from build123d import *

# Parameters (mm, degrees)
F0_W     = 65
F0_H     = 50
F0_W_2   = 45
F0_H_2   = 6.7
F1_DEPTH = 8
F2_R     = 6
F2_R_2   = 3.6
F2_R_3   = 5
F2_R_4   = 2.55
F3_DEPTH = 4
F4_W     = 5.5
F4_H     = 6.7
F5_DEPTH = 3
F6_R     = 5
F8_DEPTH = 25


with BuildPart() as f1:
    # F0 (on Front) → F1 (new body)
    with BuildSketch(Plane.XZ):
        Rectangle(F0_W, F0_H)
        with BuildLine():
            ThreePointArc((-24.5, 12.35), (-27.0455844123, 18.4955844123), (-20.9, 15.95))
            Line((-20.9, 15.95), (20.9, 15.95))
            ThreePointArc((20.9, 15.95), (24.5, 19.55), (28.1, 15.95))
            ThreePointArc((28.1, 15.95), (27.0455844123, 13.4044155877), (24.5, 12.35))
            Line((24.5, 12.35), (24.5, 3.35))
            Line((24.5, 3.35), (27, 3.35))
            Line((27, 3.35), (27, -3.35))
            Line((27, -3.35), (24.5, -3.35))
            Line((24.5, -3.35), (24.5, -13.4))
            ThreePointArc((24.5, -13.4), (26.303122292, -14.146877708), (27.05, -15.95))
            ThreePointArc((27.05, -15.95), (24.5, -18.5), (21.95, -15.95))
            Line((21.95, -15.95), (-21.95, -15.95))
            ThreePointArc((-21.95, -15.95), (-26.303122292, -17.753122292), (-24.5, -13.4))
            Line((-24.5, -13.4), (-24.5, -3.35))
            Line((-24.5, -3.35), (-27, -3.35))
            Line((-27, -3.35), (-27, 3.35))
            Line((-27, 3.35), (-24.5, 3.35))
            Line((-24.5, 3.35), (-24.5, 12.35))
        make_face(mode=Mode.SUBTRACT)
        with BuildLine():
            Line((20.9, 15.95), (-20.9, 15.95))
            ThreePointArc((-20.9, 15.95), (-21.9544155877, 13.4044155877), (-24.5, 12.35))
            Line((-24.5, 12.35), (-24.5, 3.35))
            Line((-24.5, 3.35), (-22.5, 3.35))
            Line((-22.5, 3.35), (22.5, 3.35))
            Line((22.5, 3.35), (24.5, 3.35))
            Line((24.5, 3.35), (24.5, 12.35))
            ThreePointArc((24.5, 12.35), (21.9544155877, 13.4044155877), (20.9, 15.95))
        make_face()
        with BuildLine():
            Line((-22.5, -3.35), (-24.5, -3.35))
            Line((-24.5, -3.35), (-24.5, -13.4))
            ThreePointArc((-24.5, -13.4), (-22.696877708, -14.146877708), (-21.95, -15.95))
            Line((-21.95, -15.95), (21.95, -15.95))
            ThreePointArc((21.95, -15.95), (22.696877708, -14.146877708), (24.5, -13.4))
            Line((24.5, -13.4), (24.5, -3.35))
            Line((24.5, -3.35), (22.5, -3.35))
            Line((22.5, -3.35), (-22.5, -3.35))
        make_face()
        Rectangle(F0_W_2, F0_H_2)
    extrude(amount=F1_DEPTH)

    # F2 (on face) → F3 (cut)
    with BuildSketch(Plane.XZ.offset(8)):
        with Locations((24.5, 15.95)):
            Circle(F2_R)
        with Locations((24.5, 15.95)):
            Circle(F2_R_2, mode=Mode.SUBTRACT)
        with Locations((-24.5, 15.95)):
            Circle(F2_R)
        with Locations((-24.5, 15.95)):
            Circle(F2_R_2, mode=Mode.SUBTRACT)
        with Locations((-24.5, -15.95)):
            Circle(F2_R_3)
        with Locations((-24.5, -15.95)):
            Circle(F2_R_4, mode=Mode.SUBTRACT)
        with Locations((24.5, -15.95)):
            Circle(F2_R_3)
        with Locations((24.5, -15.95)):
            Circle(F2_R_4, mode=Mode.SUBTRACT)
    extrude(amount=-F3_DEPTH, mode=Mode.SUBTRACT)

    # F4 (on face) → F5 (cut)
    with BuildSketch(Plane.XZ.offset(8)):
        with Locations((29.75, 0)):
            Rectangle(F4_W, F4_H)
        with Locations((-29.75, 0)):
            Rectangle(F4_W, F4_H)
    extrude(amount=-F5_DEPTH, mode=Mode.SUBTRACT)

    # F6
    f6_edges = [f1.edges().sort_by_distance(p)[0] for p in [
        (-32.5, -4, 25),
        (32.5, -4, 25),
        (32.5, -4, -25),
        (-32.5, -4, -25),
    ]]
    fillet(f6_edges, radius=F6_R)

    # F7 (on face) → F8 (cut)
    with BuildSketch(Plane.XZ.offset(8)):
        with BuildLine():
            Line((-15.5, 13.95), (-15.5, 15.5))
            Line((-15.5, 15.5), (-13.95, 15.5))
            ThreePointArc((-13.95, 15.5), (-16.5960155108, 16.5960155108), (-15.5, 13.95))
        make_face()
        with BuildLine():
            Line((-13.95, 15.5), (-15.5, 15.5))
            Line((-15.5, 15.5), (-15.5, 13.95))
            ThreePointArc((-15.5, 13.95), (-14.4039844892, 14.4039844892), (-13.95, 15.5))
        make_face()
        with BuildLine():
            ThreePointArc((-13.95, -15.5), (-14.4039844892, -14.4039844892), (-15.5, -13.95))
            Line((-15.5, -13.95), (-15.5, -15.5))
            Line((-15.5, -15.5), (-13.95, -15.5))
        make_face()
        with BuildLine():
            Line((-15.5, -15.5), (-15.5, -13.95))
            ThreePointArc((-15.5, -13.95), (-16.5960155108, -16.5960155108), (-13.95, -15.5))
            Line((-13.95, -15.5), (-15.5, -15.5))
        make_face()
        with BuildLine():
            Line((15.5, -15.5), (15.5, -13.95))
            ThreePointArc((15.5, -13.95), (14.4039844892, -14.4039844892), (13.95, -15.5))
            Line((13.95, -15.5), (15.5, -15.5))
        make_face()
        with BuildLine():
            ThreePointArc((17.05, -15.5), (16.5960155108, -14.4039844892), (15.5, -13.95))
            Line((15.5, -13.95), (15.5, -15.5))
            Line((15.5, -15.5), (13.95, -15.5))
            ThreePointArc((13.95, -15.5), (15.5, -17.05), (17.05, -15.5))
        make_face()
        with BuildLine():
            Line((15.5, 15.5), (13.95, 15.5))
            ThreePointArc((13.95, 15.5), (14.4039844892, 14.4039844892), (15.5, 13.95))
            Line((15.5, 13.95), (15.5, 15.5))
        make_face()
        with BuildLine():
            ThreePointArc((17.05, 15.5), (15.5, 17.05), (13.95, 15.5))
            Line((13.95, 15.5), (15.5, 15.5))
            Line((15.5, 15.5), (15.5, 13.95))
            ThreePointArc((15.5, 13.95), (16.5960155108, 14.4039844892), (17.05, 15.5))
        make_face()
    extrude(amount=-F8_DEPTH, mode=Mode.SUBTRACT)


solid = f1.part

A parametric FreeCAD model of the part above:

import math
import FreeCAD as App
import Part
import Sketcher

V = App.Vector
Q = App.Units.Quantity


def edges_at(feature, points):
    """Names of the edges that pass closest to the given points."""
    edges = feature.Shape.Edges
    near = lambda p: min(range(len(edges)), key=lambda i: edges[i].distToShape(Part.Vertex(*p))[0])
    return sorted({f"Edge{near(p) + 1}" for p in points})

doc = App.newDocument("Part")
body = doc.addObject("PartDesign::Body", "Body")

# Sketch on XZ plane
sketch1 = body.newObject("Sketcher::SketchObject", "Sketch")
sketch1.AttachmentSupport = (doc.getObject("XZ_Plane"), [""])
sketch1.MapMode = "FlatFace"
sketch1.addGeometry([
    Part.LineSegment(V(-32.5, 25, 0), V(-32.5, -25, 0)),  # 0
    Part.LineSegment(V(-32.5, -25, 0), V(32.5, -25, 0)),  # 1
    Part.LineSegment(V(32.5, -25, 0), V(32.5, 25, 0)),  # 2
    Part.LineSegment(V(32.5, 25, 0), V(-32.5, 25, 0)),  # 3
    Part.ArcOfCircle(Part.Circle(V(-24.5, -15.9, 0), V(0, 0, 1), 2.5), math.radians(90), math.radians(360)),  # 4
    Part.ArcOfCircle(Part.Circle(V(-24.5, -15.9, 0), V(0, 0, 1), 2.5), math.radians(0), math.radians(90)),  # 5
    Part.ArcOfCircle(Part.Circle(V(24.5, -15.9, 0), V(0, 0, 1), 2.5), math.radians(0), math.radians(90)),  # 6
    Part.ArcOfCircle(Part.Circle(V(24.5, -15.9, 0), V(0, 0, 1), 2.5), math.radians(180), math.radians(360)),  # 7
    Part.ArcOfCircle(Part.Circle(V(24.5, -15.9, 0), V(0, 0, 1), 2.5), math.radians(90), math.radians(180)),  # 8
    Part.LineSegment(V(-27, -3.4, 0), V(-27, 3.4, 0)),  # 9
    Part.LineSegment(V(-27, 3.4, 0), V(-22.5, 3.4, 0)),  # 10
    Part.LineSegment(V(-22.5, 3.4, 0), V(-22.5, -3.4, 0)),  # 11
    Part.LineSegment(V(-22.5, -3.4, 0), V(-27, -3.4, 0)),  # 12
    Part.LineSegment(V(27, -3.4, 0), V(22.5, -3.4, 0)),  # 13
    Part.LineSegment(V(22.5, -3.4, 0), V(22.5, 3.4, 0)),  # 14
    Part.LineSegment(V(22.5, 3.4, 0), V(27, 3.4, 0)),  # 15
    Part.LineSegment(V(27, 3.4, 0), V(27, -3.4, 0)),  # 16
    Part.ArcOfCircle(Part.Circle(V(-24.5, 15.9, 0), V(0, 0, 1), 3.6), math.radians(0), math.radians(270)),  # 17
    Part.ArcOfCircle(Part.Circle(V(-24.5, 15.9, 0), V(0, 0, 1), 3.6), math.radians(-90), math.radians(0)),  # 18
    Part.ArcOfCircle(Part.Circle(V(24.5, 15.9, 0), V(0, 0, 1), 3.6), math.radians(-90), math.radians(0)),  # 19
    Part.ArcOfCircle(Part.Circle(V(24.5, 15.9, 0), V(0, 0, 1), 3.6), math.radians(180), math.radians(270)),  # 20
    Part.ArcOfCircle(Part.Circle(V(24.5, 15.9, 0), V(0, 0, 1), 3.6), math.radians(0), math.radians(180)),  # 21
], False)
sketch1.addConstraint([
    Sketcher.Constraint("Coincident", 0, 2, 1, 1),
    Sketcher.Constraint("Coincident", 1, 2, 2, 1),
    Sketcher.Constraint("Coincident", 2, 2, 3, 1),
    Sketcher.Constraint("Coincident", 3, 2, 0, 1),
    Sketcher.Constraint("Tangent", 4, 1, 5, 2),
    Sketcher.Constraint("Coincident", 5, 1, 4, 2),
    Sketcher.Constraint("Tangent", 6, 1, 7, 2),
    Sketcher.Constraint("Tangent", 7, 1, 8, 2),
    Sketcher.Constraint("Tangent", 8, 1, 6, 2),
    Sketcher.Constraint("Coincident", 9, 2, 10, 1),
    Sketcher.Constraint("Coincident", 10, 2, 11, 1),
    Sketcher.Constraint("Coincident", 11, 2, 12, 1),
    Sketcher.Constraint("Coincident", 12, 2, 9, 1),
    Sketcher.Constraint("Coincident", 13, 2, 14, 1),
    Sketcher.Constraint("Coincident", 14, 2, 15, 1),
    Sketcher.Constraint("Coincident", 15, 2, 16, 1),
    Sketcher.Constraint("Coincident", 16, 2, 13, 1),
    Sketcher.Constraint("Tangent", 17, 1, 18, 2),
    Sketcher.Constraint("Coincident", 18, 1, 17, 2),
    Sketcher.Constraint("Tangent", 19, 1, 20, 2),
    Sketcher.Constraint("Tangent", 20, 1, 21, 2),
    Sketcher.Constraint("Tangent", 21, 1, 19, 2),
    Sketcher.Constraint("Vertical", 0),
    Sketcher.Constraint("Horizontal", 1),
    Sketcher.Constraint("Vertical", 2),
    Sketcher.Constraint("Horizontal", 3),
    Sketcher.Constraint("Vertical", 9),
    Sketcher.Constraint("Horizontal", 10),
    Sketcher.Constraint("Vertical", 11),
    Sketcher.Constraint("Horizontal", 12),
    Sketcher.Constraint("Horizontal", 13),
    Sketcher.Constraint("Vertical", 14),
    Sketcher.Constraint("Horizontal", 15),
    Sketcher.Constraint("Vertical", 16),
    Sketcher.Constraint("Equal", 5, 6),
    Sketcher.Constraint("Equal", 18, 19),
    Sketcher.Constraint("Symmetric", 6, 3, 17, 3, -1, 1),
    Sketcher.Constraint("Symmetric", 4, 3, 19, 3, -1, 1),
    Sketcher.Constraint("Symmetric", 0, 2, 2, 2, -1, 1),
    Sketcher.Constraint("Symmetric", 10, 2, 13, 2, -1, 1),
    Sketcher.Constraint("Symmetric", 12, 2, 15, 2, -1, 1),
    Sketcher.Constraint("Symmetric", 4, 3, 6, 3, -2),
    Sketcher.Constraint("Horizontal", 8, 3, 5, 1),
    Sketcher.Constraint("Horizontal", 5, 1, 6, 1),
    Sketcher.Constraint("Horizontal", 6, 1, 7, 1),
    Sketcher.Constraint("Horizontal", 12, 2, 13, 2),
    Sketcher.Constraint("Horizontal", 21, 3, 17, 1),
    Sketcher.Constraint("Horizontal", 17, 1, 20, 1),
    Sketcher.Constraint("Horizontal", 20, 1, 21, 1),
    Sketcher.Constraint("Vertical", 18, 3, 4, 1),
    Sketcher.Constraint("Vertical", 21, 3, 8, 1),
    Sketcher.Constraint("Vertical", 4, 1, 18, 1),
    Sketcher.Constraint("Vertical", 8, 1, 19, 1),
    Sketcher.Constraint("Radius", 17, Q("3.6 mm")),
    Sketcher.Constraint("DistanceX", 1, 1, 1, 2, Q("65 mm")),
    Sketcher.Constraint("DistanceY", 0, 2, 0, 1, Q("50 mm")),
    Sketcher.Constraint("Radius", 4, Q("2.55 mm")),
    Sketcher.Constraint("DistanceX", 10, 1, 10, 2, Q("4.5 mm")),
    Sketcher.Constraint("DistanceY", 9, 1, 9, 2, Q("6.7 mm")),
    Sketcher.Constraint("DistanceX", 9, 2, -1, 1, Q("27 mm")),
    Sketcher.Constraint("DistanceX", 4, 3, 6, 3, Q("49 mm")),
    Sketcher.Constraint("DistanceY", 10, 2, 18, 1, Q("9 mm")),
])
pad1 = body.newObject("PartDesign::Pad", "Pad")
pad1.Profile = sketch1
pad1.Length = 8

# Sketch on XZ plane
sketch2 = body.newObject("Sketcher::SketchObject", "Sketch001")
sketch2.AttachmentSupport = (doc.getObject("XZ_Plane"), [""])
sketch2.MapMode = "FlatFace"
sketch2.AttachmentOffset = App.Placement(V(0, 0, 8), App.Rotation())
sketch2.addGeometry([
    Part.Circle(V(24.5, 15.9, 0), V(0, 0, 1), 6),  # 0
    Part.Circle(V(24.5, 15.9, 0), V(0, 0, 1), 3.6),  # 1
    Part.Circle(V(-24.5, 15.9, 0), V(0, 0, 1), 6),  # 2
    Part.Circle(V(-24.5, 15.9, 0), V(0, 0, 1), 3.6),  # 3
    Part.Circle(V(-24.5, -15.9, 0), V(0, 0, 1), 5),  # 4
    Part.Circle(V(-24.5, -15.9, 0), V(0, 0, 1), 2.5),  # 5
    Part.Circle(V(24.5, -15.9, 0), V(0, 0, 1), 5),  # 6
    Part.Circle(V(24.5, -15.9, 0), V(0, 0, 1), 2.5),  # 7
], False)
sketch2.addConstraint([
    Sketcher.Constraint("Coincident", 1, 3, 0, 3),
    Sketcher.Constraint("Coincident", 3, 3, 2, 3),
    Sketcher.Constraint("Coincident", 5, 3, 4, 3),
    Sketcher.Constraint("Coincident", 7, 3, 6, 3),
    Sketcher.Constraint("Equal", 0, 2),
    Sketcher.Constraint("Equal", 1, 3),
    Sketcher.Constraint("Equal", 4, 6),
    Sketcher.Constraint("Equal", 5, 7),
    Sketcher.Constraint("Symmetric", 0, 3, 4, 3, -1, 1),
    Sketcher.Constraint("Symmetric", 2, 3, 6, 3, -1, 1),
    Sketcher.Constraint("Symmetric", 0, 3, 2, 3, -2),
    Sketcher.Constraint("Diameter", 0, Q("12 mm")),
    Sketcher.Constraint("Diameter", 4, Q("10 mm")),
    Sketcher.Constraint("Diameter", 1, Q("7.2 mm")),
    Sketcher.Constraint("Diameter", 5, Q("5.1 mm")),
    Sketcher.Constraint("DistanceX", 2, 3, 0, 3, Q("49 mm")),
    Sketcher.Constraint("DistanceY", 4, 3, 2, 3, Q("31.9 mm")),
])
pocket1 = body.newObject("PartDesign::Pocket", "Pocket")
pocket1.Profile = sketch2
pocket1.Length = 4

# Sketch on XZ plane
sketch3 = body.newObject("Sketcher::SketchObject", "Sketch002")
sketch3.AttachmentSupport = (doc.getObject("XZ_Plane"), [""])
sketch3.MapMode = "FlatFace"
sketch3.AttachmentOffset = App.Placement(V(0, 0, 8), App.Rotation())
sketch3.addGeometry([
    Part.LineSegment(V(27, 3, 0), V(27, -3, 0)),  # 0
    Part.LineSegment(V(27, -3, 0), V(32, -3, 0)),  # 1
    Part.LineSegment(V(32, -3, 0), V(32, 3, 0)),  # 2
    Part.LineSegment(V(32, 3, 0), V(27, 3, 0)),  # 3
    Part.LineSegment(V(-32, 3, 0), V(-32, -3, 0)),  # 4
    Part.LineSegment(V(-32, -3, 0), V(-27, -3, 0)),  # 5
    Part.LineSegment(V(-27, -3, 0), V(-27, 3, 0)),  # 6
    Part.LineSegment(V(-27, 3, 0), V(-32, 3, 0)),  # 7
], False)
sketch3.addConstraint([
    Sketcher.Constraint("Coincident", 0, 2, 1, 1),
    Sketcher.Constraint("Coincident", 1, 2, 2, 1),
    Sketcher.Constraint("Coincident", 2, 2, 3, 1),
    Sketcher.Constraint("Coincident", 3, 2, 0, 1),
    Sketcher.Constraint("Coincident", 4, 2, 5, 1),
    Sketcher.Constraint("Coincident", 5, 2, 6, 1),
    Sketcher.Constraint("Coincident", 6, 2, 7, 1),
    Sketcher.Constraint("Coincident", 7, 2, 4, 1),
    Sketcher.Constraint("Vertical", 0),
    Sketcher.Constraint("Horizontal", 1),
    Sketcher.Constraint("Vertical", 2),
    Sketcher.Constraint("Horizontal", 3),
    Sketcher.Constraint("Vertical", 4),
    Sketcher.Constraint("Horizontal", 5),
    Sketcher.Constraint("Vertical", 6),
    Sketcher.Constraint("Horizontal", 7),
    Sketcher.Constraint("Symmetric", 2, 2, 4, 2, -1, 1),
    Sketcher.Constraint("Symmetric", 0, 2, 6, 2, -1, 1),
    Sketcher.Constraint("Horizontal", 1, 2, 4, 2),
    Sketcher.Constraint("DistanceX", 1, 1, 1, 2, Q("5.5 mm")),
    Sketcher.Constraint("DistanceY", 0, 2, 0, 1, Q("6.7 mm")),
    Sketcher.Constraint("DistanceX", -1, 1, 0, 2, Q("27 mm")),
])
pocket2 = body.newObject("PartDesign::Pocket", "Pocket001")
pocket2.Profile = sketch3
pocket2.Length = 3
doc.recompute()

fillet = body.newObject("PartDesign::Fillet", "Fillet")
fillet.Base = (pocket2, edges_at(pocket2, [
    (-32.5, -4, 25),
    (32.5, -4, 25),
    (32.5, -4, -25),
    (-32.5, -4, -25),
]))
fillet.Radius = 5

# Sketch on XZ plane
sketch4 = body.newObject("Sketcher::SketchObject", "Sketch003")
sketch4.AttachmentSupport = (doc.getObject("XZ_Plane"), [""])
sketch4.MapMode = "FlatFace"
sketch4.AttachmentOffset = App.Placement(V(0, 0, 8), App.Rotation())
sketch4.addGeometry([
    Part.ArcOfCircle(Part.Circle(V(-15.5, 15.5, 0), V(0, 0, 1), 1.6), math.radians(0), math.radians(270)),  # 0
    Part.ArcOfCircle(Part.Circle(V(-15.5, 15.5, 0), V(0, 0, 1), 1.6), math.radians(-90), math.radians(0)),  # 1
    Part.ArcOfCircle(Part.Circle(V(-15.5, -15.5, 0), V(0, 0, 1), 1.6), math.radians(0), math.radians(90)),  # 2
    Part.ArcOfCircle(Part.Circle(V(-15.5, -15.5, 0), V(0, 0, 1), 1.6), math.radians(90), math.radians(360)),  # 3
    Part.ArcOfCircle(Part.Circle(V(15.5, -15.5, 0), V(0, 0, 1), 1.6), math.radians(90), math.radians(180)),  # 4
    Part.ArcOfCircle(Part.Circle(V(15.5, -15.5, 0), V(0, 0, 1), 1.6), math.radians(180), math.radians(360)),  # 5
    Part.ArcOfCircle(Part.Circle(V(15.5, -15.5, 0), V(0, 0, 1), 1.6), math.radians(0), math.radians(90)),  # 6
    Part.ArcOfCircle(Part.Circle(V(15.5, 15.5, 0), V(0, 0, 1), 1.6), math.radians(180), math.radians(270)),  # 7
    Part.ArcOfCircle(Part.Circle(V(15.5, 15.5, 0), V(0, 0, 1), 1.6), math.radians(-90), math.radians(0)),  # 8
    Part.ArcOfCircle(Part.Circle(V(15.5, 15.5, 0), V(0, 0, 1), 1.6), math.radians(0), math.radians(180)),  # 9
], False)
sketch4.addConstraint([
    Sketcher.Constraint("Tangent", 0, 1, 1, 2),
    Sketcher.Constraint("Coincident", 1, 1, 0, 2),
    Sketcher.Constraint("Tangent", 2, 1, 3, 2),
    Sketcher.Constraint("Coincident", 3, 1, 2, 2),
    Sketcher.Constraint("Tangent", 4, 2, 5, 1),
    Sketcher.Constraint("Tangent", 5, 2, 6, 1),
    Sketcher.Constraint("Tangent", 6, 2, 4, 1),
    Sketcher.Constraint("Tangent", 7, 2, 8, 1),
    Sketcher.Constraint("Tangent", 8, 2, 9, 1),
    Sketcher.Constraint("Tangent", 9, 2, 7, 1),
    Sketcher.Constraint("Equal", 1, 2),
    Sketcher.Constraint("Equal", 3, 4),
    Sketcher.Constraint("Equal", 6, 7),
    Sketcher.Constraint("Symmetric", 0, 3, 4, 3, -1, 1),
    Sketcher.Constraint("Symmetric", 2, 3, 7, 3, -1, 1),
    Sketcher.Constraint("Symmetric", 2, 3, 4, 3, -2),
    Sketcher.Constraint("Horizontal", 9, 3, 0, 1),
    Sketcher.Constraint("Horizontal", 6, 3, 2, 1),
    Sketcher.Constraint("Horizontal", 2, 1, 4, 2),
    Sketcher.Constraint("Horizontal", 4, 2, 5, 2),
    Sketcher.Constraint("Horizontal", 0, 1, 8, 2),
    Sketcher.Constraint("Horizontal", 8, 2, 9, 2),
    Sketcher.Constraint("Vertical", 3, 3, 1, 1),
    Sketcher.Constraint("Vertical", 1, 1, 3, 1),
    Sketcher.Constraint("Vertical", 9, 3, 6, 2),
    Sketcher.Constraint("Vertical", 6, 2, 7, 2),
    Sketcher.Constraint("Radius", 0, Q("1.55 mm")),
    Sketcher.Constraint("DistanceY", 2, 3, 0, 3, Q("31 mm")),
    Sketcher.Constraint("DistanceX", 2, 3, 4, 3, Q("31 mm")),
])
pocket3 = body.newObject("PartDesign::Pocket", "Pocket002")
pocket3.Profile = sketch4
pocket3.Length = 25

doc.recompute()
